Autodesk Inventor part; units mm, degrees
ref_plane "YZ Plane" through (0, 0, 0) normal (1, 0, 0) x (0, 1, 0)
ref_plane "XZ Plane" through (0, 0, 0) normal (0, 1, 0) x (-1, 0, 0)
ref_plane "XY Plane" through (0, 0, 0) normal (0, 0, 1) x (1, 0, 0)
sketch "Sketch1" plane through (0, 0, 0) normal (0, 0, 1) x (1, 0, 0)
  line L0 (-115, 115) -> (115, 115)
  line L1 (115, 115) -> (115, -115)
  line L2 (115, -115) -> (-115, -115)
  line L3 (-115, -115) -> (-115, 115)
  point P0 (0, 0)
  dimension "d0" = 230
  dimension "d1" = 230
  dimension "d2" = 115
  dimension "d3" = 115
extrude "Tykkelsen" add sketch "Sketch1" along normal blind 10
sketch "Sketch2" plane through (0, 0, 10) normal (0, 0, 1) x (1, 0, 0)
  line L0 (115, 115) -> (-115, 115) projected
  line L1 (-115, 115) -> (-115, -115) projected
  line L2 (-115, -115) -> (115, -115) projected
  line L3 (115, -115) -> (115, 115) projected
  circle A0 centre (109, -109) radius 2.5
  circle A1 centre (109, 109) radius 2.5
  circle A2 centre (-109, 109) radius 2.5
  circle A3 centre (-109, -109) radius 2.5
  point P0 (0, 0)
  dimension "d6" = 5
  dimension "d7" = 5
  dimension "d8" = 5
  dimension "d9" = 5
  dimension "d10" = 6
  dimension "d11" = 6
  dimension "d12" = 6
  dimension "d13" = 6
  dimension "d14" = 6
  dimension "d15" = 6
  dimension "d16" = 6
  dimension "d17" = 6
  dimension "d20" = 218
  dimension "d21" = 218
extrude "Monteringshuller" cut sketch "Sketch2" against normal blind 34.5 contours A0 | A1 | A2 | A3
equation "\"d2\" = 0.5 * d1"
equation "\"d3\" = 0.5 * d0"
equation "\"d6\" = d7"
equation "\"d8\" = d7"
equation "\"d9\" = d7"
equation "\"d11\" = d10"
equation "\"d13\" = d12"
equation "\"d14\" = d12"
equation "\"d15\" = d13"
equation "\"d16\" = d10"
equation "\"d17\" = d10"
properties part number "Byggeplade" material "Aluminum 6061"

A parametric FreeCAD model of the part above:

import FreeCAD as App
import Part
import Sketcher

V = App.Vector
Q = App.Units.Quantity


def add_polygon(sketch, points):
    """Adds a closed chain of lines whose ends are joined by coincident constraints."""
    first, n = sketch.GeometryCount, len(points)
    for a, b in zip(points, points[1:] + points[:1]):
        sketch.addGeometry(Part.LineSegment(App.Vector(*a, 0), App.Vector(*b, 0)), False)
    for i in range(n):
        sketch.addConstraint(Sketcher.Constraint("Coincident", first + i, 2, first + (i + 1) % n, 1))

doc = App.newDocument("Part")
body = doc.addObject("PartDesign::Body", "Body")

sketch1 = body.newObject("Sketcher::SketchObject", "Sketch")
sketch1.AttachmentSupport = (doc.getObject("XY_Plane"), [""])
sketch1.MapMode = "FlatFace"
add_polygon(sketch1, [(115, 115), (-115, 115), (-115, -115), (115, -115)])
sketch1.addConstraint([
    Sketcher.Constraint("Horizontal", 0),
    Sketcher.Constraint("Vertical", 1),
    Sketcher.Constraint("Horizontal", 2),
    Sketcher.Constraint("Vertical", 3),
    Sketcher.Constraint("Symmetric", 0, 2, 2, 2, -1, 1),
    Sketcher.Constraint("Equal", 2, 1),
    Sketcher.Constraint("DistanceX", 0, 2, 0, 1, Q("230 mm")),
])
pad1 = body.newObject("PartDesign::Pad", "Pad")
pad1.Profile = sketch1
pad1.Length = 10

sketch2 = body.newObject("Sketcher::SketchObject", "Sketch001")
sketch2.AttachmentSupport = (doc.getObject("XY_Plane"), [""])
sketch2.MapMode = "FlatFace"
sketch2.AttachmentOffset = App.Placement(V(0, 0, 10), App.Rotation())
sketch2.addGeometry([
    Part.Circle(V(109, -109, 0), V(0, 0, 1), 2.5),
    Part.Circle(V(109, 109, 0), V(0, 0, 1), 2.5),
    Part.Circle(V(-109, 109, 0), V(0, 0, 1), 2.5),
    Part.Circle(V(-109, -109, 0), V(0, 0, 1), 2.5),
], False)
sketch2.addConstraint([
    Sketcher.Constraint("Equal", 0, 1),
    Sketcher.Constraint("Equal", 1, 2),
    Sketcher.Constraint("Equal", 2, 3),
    Sketcher.Constraint("Symmetric", 0, 3, 2, 3, -1, 1),
    Sketcher.Constraint("Symmetric", 1, 3, 3, 3, -1, 1),
    Sketcher.Constraint("Symmetric", 1, 3, 2, 3, -2),
    Sketcher.Constraint("Diameter", 0, Q("5 mm")),
    Sketcher.Constraint("DistanceY", 0, 3, 1, 3, Q("218 mm")),
    Sketcher.Constraint("DistanceX", 2, 3, 1, 3, Q("218 mm")),
])
pocket1 = body.newObject("PartDesign::Pocket", "Pocket")
pocket1.Profile = sketch2
pocket1.Length = 34.5

doc.recompute()
